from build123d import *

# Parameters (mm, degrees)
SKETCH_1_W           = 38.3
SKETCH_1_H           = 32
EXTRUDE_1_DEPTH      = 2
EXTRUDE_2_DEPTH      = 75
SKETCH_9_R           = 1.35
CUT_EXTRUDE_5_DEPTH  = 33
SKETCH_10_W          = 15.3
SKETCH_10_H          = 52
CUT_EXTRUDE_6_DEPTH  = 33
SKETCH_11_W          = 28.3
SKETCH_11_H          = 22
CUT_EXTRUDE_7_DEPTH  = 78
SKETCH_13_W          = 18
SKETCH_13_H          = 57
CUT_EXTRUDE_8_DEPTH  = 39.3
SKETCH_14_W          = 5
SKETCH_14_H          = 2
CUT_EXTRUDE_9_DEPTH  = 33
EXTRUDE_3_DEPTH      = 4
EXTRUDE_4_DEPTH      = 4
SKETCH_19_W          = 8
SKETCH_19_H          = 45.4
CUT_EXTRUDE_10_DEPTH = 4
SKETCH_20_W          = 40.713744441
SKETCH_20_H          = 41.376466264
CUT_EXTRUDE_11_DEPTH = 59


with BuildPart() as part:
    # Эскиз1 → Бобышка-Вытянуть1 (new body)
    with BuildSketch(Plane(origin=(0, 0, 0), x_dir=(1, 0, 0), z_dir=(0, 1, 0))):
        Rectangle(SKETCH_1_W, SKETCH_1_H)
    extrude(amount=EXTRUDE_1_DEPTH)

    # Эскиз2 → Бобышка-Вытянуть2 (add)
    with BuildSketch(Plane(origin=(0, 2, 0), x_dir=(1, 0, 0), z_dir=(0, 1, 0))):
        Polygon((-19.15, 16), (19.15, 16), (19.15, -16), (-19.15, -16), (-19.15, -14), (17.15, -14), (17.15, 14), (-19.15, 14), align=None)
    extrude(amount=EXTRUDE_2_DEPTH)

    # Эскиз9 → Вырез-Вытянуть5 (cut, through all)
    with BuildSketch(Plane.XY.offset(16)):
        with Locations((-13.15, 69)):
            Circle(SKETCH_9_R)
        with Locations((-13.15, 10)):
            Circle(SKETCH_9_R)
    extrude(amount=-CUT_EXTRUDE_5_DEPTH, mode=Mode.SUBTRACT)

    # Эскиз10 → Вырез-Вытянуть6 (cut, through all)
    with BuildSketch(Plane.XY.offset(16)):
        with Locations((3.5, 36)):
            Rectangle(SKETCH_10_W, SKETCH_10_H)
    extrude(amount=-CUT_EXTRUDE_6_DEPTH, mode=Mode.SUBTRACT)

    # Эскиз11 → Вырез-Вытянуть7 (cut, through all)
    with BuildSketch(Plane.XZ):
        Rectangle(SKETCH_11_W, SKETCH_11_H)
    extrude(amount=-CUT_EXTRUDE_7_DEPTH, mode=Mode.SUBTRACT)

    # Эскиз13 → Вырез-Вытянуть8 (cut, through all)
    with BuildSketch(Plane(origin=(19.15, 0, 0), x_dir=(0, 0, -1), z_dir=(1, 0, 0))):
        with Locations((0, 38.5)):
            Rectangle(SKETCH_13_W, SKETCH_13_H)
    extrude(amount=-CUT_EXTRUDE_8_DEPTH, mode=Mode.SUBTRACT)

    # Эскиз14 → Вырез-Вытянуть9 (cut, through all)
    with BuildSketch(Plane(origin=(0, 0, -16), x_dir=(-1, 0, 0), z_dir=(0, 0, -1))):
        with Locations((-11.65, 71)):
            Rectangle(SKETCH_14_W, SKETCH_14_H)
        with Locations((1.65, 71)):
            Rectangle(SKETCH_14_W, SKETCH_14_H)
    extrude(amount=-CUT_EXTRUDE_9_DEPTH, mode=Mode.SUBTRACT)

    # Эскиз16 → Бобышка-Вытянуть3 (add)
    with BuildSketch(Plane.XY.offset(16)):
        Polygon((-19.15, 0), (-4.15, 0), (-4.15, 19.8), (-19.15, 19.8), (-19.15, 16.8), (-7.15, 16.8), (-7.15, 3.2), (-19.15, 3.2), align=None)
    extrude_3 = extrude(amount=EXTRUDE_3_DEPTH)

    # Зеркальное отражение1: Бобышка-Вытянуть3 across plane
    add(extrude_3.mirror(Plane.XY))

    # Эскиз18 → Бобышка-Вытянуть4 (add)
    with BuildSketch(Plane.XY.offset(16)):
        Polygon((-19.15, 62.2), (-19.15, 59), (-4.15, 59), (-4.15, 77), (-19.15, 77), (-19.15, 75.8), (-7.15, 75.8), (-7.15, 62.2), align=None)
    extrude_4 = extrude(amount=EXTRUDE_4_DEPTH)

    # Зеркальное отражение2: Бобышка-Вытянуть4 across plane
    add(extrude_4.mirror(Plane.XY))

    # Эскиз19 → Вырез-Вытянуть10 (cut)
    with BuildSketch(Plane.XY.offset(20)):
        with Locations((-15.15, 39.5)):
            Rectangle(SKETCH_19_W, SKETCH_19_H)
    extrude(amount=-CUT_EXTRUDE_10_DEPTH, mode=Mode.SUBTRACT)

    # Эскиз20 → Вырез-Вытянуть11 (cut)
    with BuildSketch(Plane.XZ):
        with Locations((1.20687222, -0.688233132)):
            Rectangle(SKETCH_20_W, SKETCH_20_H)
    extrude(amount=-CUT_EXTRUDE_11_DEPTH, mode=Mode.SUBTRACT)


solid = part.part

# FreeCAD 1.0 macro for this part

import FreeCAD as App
import Part
import Sketcher
Q = App.Units.Quantity

doc = App.newDocument("Part")
body = doc.addObject("PartDesign::Body", "Body")

sketch1 = body.newObject("Sketcher::SketchObject", "Sketch")
sketch1.AttachmentSupport = (doc.getObject("XZ_Plane"), [""])
sketch1.MapMode = "FlatFace"
sketch1.addGeometry([
    Part.LineSegment(App.Vector(-19, -16, 0), App.Vector(-19, 16, 0)),
    Part.LineSegment(App.Vector(-19, 16, 0), App.Vector(19, 16, 0)),
    Part.LineSegment(App.Vector(19, 16, 0), App.Vector(19, -16, 0)),
    Part.LineSegment(App.Vector(19, -16, 0), App.Vector(-19, -16, 0)),
], False)
sketch1.addConstraint([
    Sketcher.Constraint("Coincident", 0, 2, 1, 1),
    Sketcher.Constraint("Coincident", 1, 2, 2, 1),
    Sketcher.Constraint("Coincident", 2, 2, 3, 1),
    Sketcher.Constraint("Coincident", 3, 2, 0, 1),
    Sketcher.Constraint("Vertical", 0),
    Sketcher.Constraint("Horizontal", 1),
    Sketcher.Constraint("Vertical", 2),
    Sketcher.Constraint("Horizontal", 3),
    Sketcher.Constraint("Symmetric", 0, 2, 2, 2, -1, 1),
    Sketcher.Constraint("DistanceY", 0, 1, 0, 2, Q("32 mm")),
    Sketcher.Constraint("DistanceX", 1, 1, 1, 2, Q("38.3 mm")),
])
pad1 = body.newObject("PartDesign::Pad", "Pad")
pad1.Profile = sketch1
pad1.Length = 2
pad1.Reversed = True

sketch2 = body.newObject("Sketcher::SketchObject", "Sketch001")
sketch2.AttachmentSupport = (doc.getObject("XZ_Plane"), [""])
sketch2.MapMode = "FlatFace"
sketch2.AttachmentOffset = App.Placement(App.Vector(0, 0, -2), App.Rotation())
sketch2.addGeometry([
    Part.LineSegment(App.Vector(19.1, -16, 0), App.Vector(-19.1, -16, 0)),
    Part.LineSegment(App.Vector(-19.1, -16, 0), App.Vector(-19.1, -14, 0)),
    Part.LineSegment(App.Vector(-19.1, -14, 0), App.Vector(17.1, -14, 0)),
    Part.LineSegment(App.Vector(17.1, -14, 0), App.Vector(17.1, 14, 0)),
    Part.LineSegment(App.Vector(17.1, 14, 0), App.Vector(-19.1, 14, 0)),
    Part.LineSegment(App.Vector(-19.1, 14, 0), App.Vector(-19.1, 16, 0)),
    Part.LineSegment(App.Vector(-19.1, 16, 0), App.Vector(19.1, 16, 0)),
    Part.LineSegment(App.Vector(19.1, 16, 0), App.Vector(19.1, -16, 0)),
], False)
sketch2.addConstraint([
    Sketcher.Constraint("Coincident", 0, 2, 1, 1),
    Sketcher.Constraint("Coincident", 1, 2, 2, 1),
    Sketcher.Constraint("Coincident", 2, 2, 3, 1),
    Sketcher.Constraint("Coincident", 3, 2, 4, 1),
    Sketcher.Constraint("Coincident", 4, 2, 5, 1),
    Sketcher.Constraint("Coincident", 5, 2, 6, 1),
    Sketcher.Constraint("Coincident", 6, 2, 7, 1),
    Sketcher.Constraint("Coincident", 7, 2, 0, 1),
    Sketcher.Constraint("Horizontal", 0),
    Sketcher.Constraint("Vertical", 1),
    Sketcher.Constraint("Horizontal", 2),
    Sketcher.Constraint("Vertical", 3),
    Sketcher.Constraint("Horizontal", 4),
    Sketcher.Constraint("Vertical", 5),
    Sketcher.Constraint("Horizontal", 6),
    Sketcher.Constraint("Vertical", 7),
    Sketcher.Constraint("Symmetric", 0, 2, 6, 2, -1, 1),
    Sketcher.Constraint("Symmetric", 1, 2, 4, 2, -1),
    Sketcher.Constraint("DistanceY", 1, 1, 1, 2, Q("2 mm")),
    Sketcher.Constraint("DistanceY", 3, 1, 3, 2, Q("28 mm")),
    Sketcher.Constraint("DistanceX", 0, 2, 0, 1, Q("38.3 mm")),
    Sketcher.Constraint("DistanceX", 2, 1, 2, 2, Q("36.3 mm")),
])
pad2 = body.newObject("PartDesign::Pad", "Pad001")
pad2.Profile = sketch2
pad2.Length = 75
pad2.Reversed = True

sketch3 = body.newObject("Sketcher::SketchObject", "Sketch002")
sketch3.AttachmentSupport = (doc.getObject("XY_Plane"), [""])
sketch3.MapMode = "FlatFace"
sketch3.AttachmentOffset = App.Placement(App.Vector(0, 0, 16), App.Rotation())
sketch3.addGeometry([
    Part.Circle(App.Vector(-13.2, 69, 0), App.Vector(0, 0, 1), 1.4),
    Part.Circle(App.Vector(-13.2, 10, 0), App.Vector(0, 0, 1), 1.4),
], False)
sketch3.addConstraint([
    Sketcher.Constraint("Equal", 0, 1),
    Sketcher.Constraint("Vertical", 0, 3, 1, 3),
    Sketcher.Constraint("Diameter", 0, Q("2.7 mm")),
    Sketcher.Constraint("DistanceY", -1, 1, 0, 3, Q("69 mm")),
    Sketcher.Constraint("DistanceY", -1, 1, 1, 3, Q("10 mm")),
    Sketcher.Constraint("DistanceX", 0, 3, -1, 1, Q("13.15 mm")),
])
pocket1 = body.newObject("PartDesign::Pocket", "Pocket")
pocket1.Profile = sketch3
pocket1.Type = "ThroughAll"

sketch4 = body.newObject("Sketcher::SketchObject", "Sketch003")
sketch4.AttachmentSupport = (doc.getObject("XY_Plane"), [""])
sketch4.MapMode = "FlatFace"
sketch4.AttachmentOffset = App.Placement(App.Vector(0, 0, 16), App.Rotation())
sketch4.addGeometry([
    Part.LineSegment(App.Vector(-4, 62, 0), App.Vector(-4, 10, 0)),
    Part.LineSegment(App.Vector(-4, 10, 0), App.Vector(11, 10, 0)),
    Part.LineSegment(App.Vector(11, 10, 0), App.Vector(11, 62, 0)),
    Part.LineSegment(App.Vector(11, 62, 0), App.Vector(-4, 62, 0)),
], False)
sketch4.addConstraint([
    Sketcher.Constraint("Coincident", 0, 2, 1, 1),
    Sketcher.Constraint("Coincident", 1, 2, 2, 1),
    Sketcher.Constraint("Coincident", 2, 2, 3, 1),
    Sketcher.Constraint("Coincident", 3, 2, 0, 1),
    Sketcher.Constraint("Vertical", 0),
    Sketcher.Constraint("Horizontal", 1),
    Sketcher.Constraint("Vertical", 2),
    Sketcher.Constraint("Horizontal", 3),
    Sketcher.Constraint("DistanceY", 0, 2, 0, 1, Q("52 mm")),
    Sketcher.Constraint("DistanceX", 1, 1, 1, 2, Q("15.3 mm")),
    Sketcher.Constraint("DistanceY", -1, 1, 0, 2, Q("10 mm")),
    Sketcher.Constraint("DistanceX", 0, 2, -1, 1, Q("4.15 mm")),
])
pocket2 = body.newObject("PartDesign::Pocket", "Pocket001")
pocket2.Profile = sketch4
pocket2.Type = "ThroughAll"

sketch5 = body.newObject("Sketcher::SketchObject", "Sketch004")
sketch5.AttachmentSupport = (doc.getObject("XZ_Plane"), [""])
sketch5.MapMode = "FlatFace"
sketch5.addGeometry([
    Part.LineSegment(App.Vector(-14, 11, 0), App.Vector(-14, -11, 0)),
    Part.LineSegment(App.Vector(-14, -11, 0), App.Vector(14, -11, 0)),
    Part.LineSegment(App.Vector(14, -11, 0), App.Vector(14, 11, 0)),
    Part.LineSegment(App.Vector(14, 11, 0), App.Vector(-14, 11, 0)),
], False)
sketch5.addConstraint([
    Sketcher.Constraint("Coincident", 0, 2, 1, 1),
    Sketcher.Constraint("Coincident", 1, 2, 2, 1),
    Sketcher.Constraint("Coincident", 2, 2, 3, 1),
    Sketcher.Constraint("Coincident", 3, 2, 0, 1),
    Sketcher.Constraint("Vertical", 0),
    Sketcher.Constraint("Horizontal", 1),
    Sketcher.Constraint("Vertical", 2),
    Sketcher.Constraint("Horizontal", 3),
    Sketcher.Constraint("Symmetric", 0, 2, 2, 2, -1, 1),
    Sketcher.Constraint("DistanceY", 0, 2, 0, 1, Q("22 mm")),
    Sketcher.Constraint("DistanceX", 1, 1, 1, 2, Q("28.3 mm")),
])
pocket3 = body.newObject("PartDesign::Pocket", "Pocket002")
pocket3.Profile = sketch5
pocket3.Type = "ThroughAll"

sketch6 = body.newObject("Sketcher::SketchObject", "Sketch005")
sketch6.AttachmentSupport = (doc.getObject("YZ_Plane"), [""])
sketch6.MapMode = "FlatFace"
sketch6.AttachmentOffset = App.Placement(App.Vector(0, 0, 19.15), App.Rotation())
sketch6.addGeometry([
    Part.LineSegment(App.Vector(67, 9, 0), App.Vector(10, 9, 0)),
    Part.LineSegment(App.Vector(10, 9, 0), App.Vector(10, -9, 0)),
    Part.LineSegment(App.Vector(10, -9, 0), App.Vector(67, -9, 0)),
    Part.LineSegment(App.Vector(67, -9, 0), App.Vector(67, 9, 0)),
], False)
sketch6.addConstraint([
    Sketcher.Constraint("Coincident", 0, 2, 1, 1),
    Sketcher.Constraint("Coincident", 1, 2, 2, 1),
    Sketcher.Constraint("Coincident", 2, 2, 3, 1),
    Sketcher.Constraint("Coincident", 3, 2, 0, 1),
    Sketcher.Constraint("Horizontal", 0),
    Sketcher.Constraint("Vertical", 1),
    Sketcher.Constraint("Horizontal", 2),
    Sketcher.Constraint("Vertical", 3),
    Sketcher.Constraint("DistanceX", 0, 2, 0, 1, Q("57 mm")),
    Sketcher.Constraint("DistanceY", 1, 2, 1, 1, Q("18 mm")),
    Sketcher.Constraint("DistanceX", -1, 1, 0, 2, Q("10 mm")),
    Sketcher.Constraint("DistanceY", -1, 1, 0, 2, Q("9 mm")),
])
pocket4 = body.newObject("PartDesign::Pocket", "Pocket003")
pocket4.Profile = sketch6
pocket4.Type = "ThroughAll"

sketch7 = body.newObject("Sketcher::SketchObject", "Sketch006")
sketch7.AttachmentSupport = (doc.getObject("XY_Plane"), [""])
sketch7.MapMode = "FlatFace"
sketch7.AttachmentOffset = App.Placement(App.Vector(0, 0, -16), App.Rotation())
sketch7.addGeometry([
    Part.LineSegment(App.Vector(14.2, 72, 0), App.Vector(14.2, 70, 0)),
    Part.LineSegment(App.Vector(14.2, 70, 0), App.Vector(9.2, 70, 0)),
    Part.LineSegment(App.Vector(9.2, 70, 0), App.Vector(9.2, 72, 0)),
    Part.LineSegment(App.Vector(9.2, 72, 0), App.Vector(14.2, 72, 0)),
    Part.LineSegment(App.Vector(0.8, 72, 0), App.Vector(0.8, 70, 0)),
    Part.LineSegment(App.Vector(0.8, 70, 0), App.Vector(-4.2, 70, 0)),
    Part.LineSegment(App.Vector(-4.2, 70, 0), App.Vector(-4.2, 72, 0)),
    Part.LineSegment(App.Vector(-4.2, 72, 0), App.Vector(0.8, 72, 0)),
], False)
sketch7.addConstraint([
    Sketcher.Constraint("Coincident", 0, 2, 1, 1),
    Sketcher.Constraint("Coincident", 1, 2, 2, 1),
    Sketcher.Constraint("Coincident", 2, 2, 3, 1),
    Sketcher.Constraint("Coincident", 3, 2, 0, 1),
    Sketcher.Constraint("Coincident", 4, 2, 5, 1),
    Sketcher.Constraint("Coincident", 5, 2, 6, 1),
    Sketcher.Constraint("Coincident", 6, 2, 7, 1),
    Sketcher.Constraint("Coincident", 7, 2, 4, 1),
    Sketcher.Constraint("Vertical", 0),
    Sketcher.Constraint("Horizontal", 1),
    Sketcher.Constraint("Vertical", 2),
    Sketcher.Constraint("Horizontal", 3),
    Sketcher.Constraint("Vertical", 4),
    Sketcher.Constraint("Horizontal", 5),
    Sketcher.Constraint("Vertical", 6),
    Sketcher.Constraint("Horizontal", 7),
    Sketcher.Constraint("Horizontal", 1, 2, 4, 2),
    Sketcher.Constraint("Horizontal", 3, 2, 6, 2),
    Sketcher.Constraint("Equal", 3, 5),
    Sketcher.Constraint("DistanceX", 1, 2, 1, 1, Q("5 mm")),
    Sketcher.Constraint("DistanceY", 0, 2, 0, 1, Q("2 mm")),
    Sketcher.Constraint("DistanceY", -1, 1, 0, 2, Q("70 mm")),
    Sketcher.Constraint("DistanceX", 4, 2, 1, 2, Q("8.3 mm")),
    Sketcher.Constraint("DistanceX", -1, 1, 0, 2, Q("14.15 mm")),
])
pocket5 = body.newObject("PartDesign::Pocket", "Pocket004")
pocket5.Profile = sketch7
pocket5.Type = "ThroughAll"
pocket5.Reversed = True

sketch8 = body.newObject("Sketcher::SketchObject", "Sketch007")
sketch8.AttachmentSupport = (doc.getObject("XY_Plane"), [""])
sketch8.MapMode = "FlatFace"
sketch8.AttachmentOffset = App.Placement(App.Vector(0, 0, 16), App.Rotation())
sketch8.addGeometry([
    Part.LineSegment(App.Vector(-19.1, 0, 0), App.Vector(-4.2, 0, 0)),
    Part.LineSegment(App.Vector(-4.2, 0, 0), App.Vector(-4.2, 19.8, 0)),
    Part.LineSegment(App.Vector(-4.2, 19.8, 0), App.Vector(-19.1, 19.8, 0)),
    Part.LineSegment(App.Vector(-19.1, 19.8, 0), App.Vector(-19.1, 16.8, 0)),
    Part.LineSegment(App.Vector(-19.1, 16.8, 0), App.Vector(-7.2, 16.8, 0)),
    Part.LineSegment(App.Vector(-7.2, 16.8, 0), App.Vector(-7.2, 3.2, 0)),
    Part.LineSegment(App.Vector(-7.2, 3.2, 0), App.Vector(-19.1, 3.2, 0)),
    Part.LineSegment(App.Vector(-19.1, 3.2, 0), App.Vector(-19.1, 0, 0)),
], False)
sketch8.addConstraint([
    Sketcher.Constraint("Coincident", 0, 2, 1, 1),
    Sketcher.Constraint("Coincident", 1, 2, 2, 1),
    Sketcher.Constraint("Coincident", 2, 2, 3, 1),
    Sketcher.Constraint("Coincident", 3, 2, 4, 1),
    Sketcher.Constraint("Coincident", 4, 2, 5, 1),
    Sketcher.Constraint("Coincident", 5, 2, 6, 1),
    Sketcher.Constraint("Coincident", 6, 2, 7, 1),
    Sketcher.Constraint("Coincident", 7, 2, 0, 1),
    Sketcher.Constraint("Horizontal", 0),
    Sketcher.Constraint("Vertical", 1),
    Sketcher.Constraint("Horizontal", 2),
    Sketcher.Constraint("Vertical", 3),
    Sketcher.Constraint("Horizontal", 4),
    Sketcher.Constraint("Vertical", 5),
    Sketcher.Constraint("Horizontal", 6),
    Sketcher.Constraint("Vertical", 7),
    Sketcher.Constraint("PointOnObject", 0, 2, -1),
    Sketcher.Constraint("Vertical", 3, 2, 6, 2),
    Sketcher.Constraint("DistanceX", 0, 1, 0, 2, Q("15 mm")),
    Sketcher.Constraint("DistanceX", 4, 1, 4, 2, Q("12 mm")),
    Sketcher.Constraint("DistanceY", 3, 2, 3, 1, Q("3 mm")),
    Sketcher.Constraint("DistanceY", 1, 1, 1, 2, Q("19.8 mm")),
    Sketcher.Constraint("DistanceY", 5, 2, 5, 1, Q("13.6 mm")),
    Sketcher.Constraint("DistanceX", 0, 2, -1, 1, Q("4.15 mm")),
])
pad3 = body.newObject("PartDesign::Pad", "Pad002")
pad3.Profile = sketch8
pad3.Length = 4
doc.recompute()

mirrored = body.newObject("PartDesign::Mirrored", "Mirrored")
mirrored.Originals = [pad3]
mirrored.MirrorPlane = (doc.getObject("XY_Plane"), [""])
body.Tip = mirrored

sketch9 = body.newObject("Sketcher::SketchObject", "Sketch008")
sketch9.AttachmentSupport = (doc.getObject("XY_Plane"), [""])
sketch9.MapMode = "FlatFace"
sketch9.AttachmentOffset = App.Placement(App.Vector(0, 0, 16), App.Rotation())
sketch9.addGeometry([
    Part.LineSegment(App.Vector(-19.1, 62.2, 0), App.Vector(-19.1, 59, 0)),
    Part.LineSegment(App.Vector(-19.1, 59, 0), App.Vector(-4.2, 59, 0)),
    Part.LineSegment(App.Vector(-4.2, 59, 0), App.Vector(-4.2, 77, 0)),
    Part.LineSegment(App.Vector(-4.2, 77, 0), App.Vector(-19.1, 77, 0)),
    Part.LineSegment(App.Vector(-19.1, 77, 0), App.Vector(-19.1, 75.8, 0)),
    Part.LineSegment(App.Vector(-19.1, 75.8, 0), App.Vector(-7.2, 75.8, 0)),
    Part.LineSegment(App.Vector(-7.2, 75.8, 0), App.Vector(-7.2, 62.2, 0)),
    Part.LineSegment(App.Vector(-7.2, 62.2, 0), App.Vector(-19.1, 62.2, 0)),
], False)
sketch9.addConstraint([
    Sketcher.Constraint("Coincident", 0, 2, 1, 1),
    Sketcher.Constraint("Coincident", 1, 2, 2, 1),
    Sketcher.Constraint("Coincident", 2, 2, 3, 1),
    Sketcher.Constraint("Coincident", 3, 2, 4, 1),
    Sketcher.Constraint("Coincident", 4, 2, 5, 1),
    Sketcher.Constraint("Coincident", 5, 2, 6, 1),
    Sketcher.Constraint("Coincident", 6, 2, 7, 1),
    Sketcher.Constraint("Coincident", 7, 2, 0, 1),
    Sketcher.Constraint("Vertical", 0),
    Sketcher.Constraint("Horizontal", 1),
    Sketcher.Constraint("Vertical", 2),
    Sketcher.Constraint("Horizontal", 3),
    Sketcher.Constraint("Vertical", 4),
    Sketcher.Constraint("Horizontal", 5),
    Sketcher.Constraint("Vertical", 6),
    Sketcher.Constraint("Horizontal", 7),
    Sketcher.Constraint("Vertical", 0, 2, 3, 2),
    Sketcher.Constraint("DistanceX", 1, 1, 1, 2, Q("15 mm")),
    Sketcher.Constraint("DistanceX", 5, 1, 5, 2, Q("12 mm")),
    Sketcher.Constraint("DistanceY", 2, 1, 2, 2, Q("18 mm")),
    Sketcher.Constraint("DistanceY", 0, 2, 0, 1, Q("3.2 mm")),
    Sketcher.Constraint("DistanceY", 4, 2, 4, 1, Q("1.2 mm")),
    Sketcher.Constraint("DistanceY", -1, 1, 0, 2, Q("59 mm")),
    Sketcher.Constraint("DistanceX", 0, 2, -1, 1, Q("19.15 mm")),
])
pad4 = body.newObject("PartDesign::Pad", "Pad003")
pad4.Profile = sketch9
pad4.Length = 4
doc.recompute()

mirrored2 = body.newObject("PartDesign::Mirrored", "Mirrored001")
mirrored2.Originals = [pad4]
mirrored2.MirrorPlane = (doc.getObject("XY_Plane"), [""])
body.Tip = mirrored2

sketch10 = body.newObject("Sketcher::SketchObject", "Sketch009")
sketch10.AttachmentSupport = (doc.getObject("XY_Plane"), [""])
sketch10.MapMode = "FlatFace"
sketch10.AttachmentOffset = App.Placement(App.Vector(0, 0, 20), App.Rotation())
sketch10.addGeometry([
    Part.LineSegment(App.Vector(-19, 62, 0), App.Vector(-19, 17, 0)),
    Part.LineSegment(App.Vector(-19, 17, 0), App.Vector(-11, 17, 0)),
    Part.LineSegment(App.Vector(-11, 17, 0), App.Vector(-11, 62, 0)),
    Part.LineSegment(App.Vector(-11, 62, 0), App.Vector(-19, 62, 0)),
], False)
sketch10.addConstraint([
    Sketcher.Constraint("Coincident", 0, 2, 1, 1),
    Sketcher.Constraint("Coincident", 1, 2, 2, 1),
    Sketcher.Constraint("Coincident", 2, 2, 3, 1),
    Sketcher.Constraint("Coincident", 3, 2, 0, 1),
    Sketcher.Constraint("Vertical", 0),
    Sketcher.Constraint("Horizontal", 1),
    Sketcher.Constraint("Vertical", 2),
    Sketcher.Constraint("Horizontal", 3),
    Sketcher.Constraint("DistanceX", 1, 1, 1, 2, Q("8 mm")),
    Sketcher.Constraint("DistanceY", 0, 2, 0, 1, Q("45.4 mm")),
    Sketcher.Constraint("DistanceY", -1, 1, 0, 2, Q("16.8 mm")),
    Sketcher.Constraint("DistanceX", 0, 2, -1, 1, Q("19.15 mm")),
])
pocket6 = body.newObject("PartDesign::Pocket", "Pocket005")
pocket6.Profile = sketch10
pocket6.Length = 4

sketch11 = body.newObject("Sketcher::SketchObject", "Sketch010")
sketch11.AttachmentSupport = (doc.getObject("XZ_Plane"), [""])
sketch11.MapMode = "FlatFace"
sketch11.addGeometry([
    Part.LineSegment(App.Vector(-19, 20, 0), App.Vector(-19, -21, 0)),
    Part.LineSegment(App.Vector(-19, -21, 0), App.Vector(22, -21, 0)),
    Part.LineSegment(App.Vector(22, -21, 0), App.Vector(22, 20, 0)),
    Part.LineSegment(App.Vector(22, 20, 0), App.Vector(-19, 20, 0)),
], False)
sketch11.addConstraint([
    Sketcher.Constraint("Coincident", 0, 2, 1, 1),
    Sketcher.Constraint("Coincident", 1, 2, 2, 1),
    Sketcher.Constraint("Coincident", 2, 2, 3, 1),
    Sketcher.Constraint("Coincident", 3, 2, 0, 1),
    Sketcher.Constraint("Vertical", 0),
    Sketcher.Constraint("Horizontal", 1),
    Sketcher.Constraint("Vertical", 2),
    Sketcher.Constraint("Horizontal", 3),
    Sketcher.Constraint("DistanceY", -1, 1, 2, 2, Q("20 mm")),
    Sketcher.Constraint("DistanceX", 0, 2, -1, 1, Q("19.15 mm")),
    Sketcher.Constraint("DistanceX", 1, 1, 1, 2, Q("40.713744 mm")),
    Sketcher.Constraint("DistanceY", 0, 2, 0, 1, Q("41.376466 mm")),
])
pocket7 = body.newObject("PartDesign::Pocket", "Pocket006")
pocket7.Profile = sketch11
pocket7.Length = 59

doc.recompute()
